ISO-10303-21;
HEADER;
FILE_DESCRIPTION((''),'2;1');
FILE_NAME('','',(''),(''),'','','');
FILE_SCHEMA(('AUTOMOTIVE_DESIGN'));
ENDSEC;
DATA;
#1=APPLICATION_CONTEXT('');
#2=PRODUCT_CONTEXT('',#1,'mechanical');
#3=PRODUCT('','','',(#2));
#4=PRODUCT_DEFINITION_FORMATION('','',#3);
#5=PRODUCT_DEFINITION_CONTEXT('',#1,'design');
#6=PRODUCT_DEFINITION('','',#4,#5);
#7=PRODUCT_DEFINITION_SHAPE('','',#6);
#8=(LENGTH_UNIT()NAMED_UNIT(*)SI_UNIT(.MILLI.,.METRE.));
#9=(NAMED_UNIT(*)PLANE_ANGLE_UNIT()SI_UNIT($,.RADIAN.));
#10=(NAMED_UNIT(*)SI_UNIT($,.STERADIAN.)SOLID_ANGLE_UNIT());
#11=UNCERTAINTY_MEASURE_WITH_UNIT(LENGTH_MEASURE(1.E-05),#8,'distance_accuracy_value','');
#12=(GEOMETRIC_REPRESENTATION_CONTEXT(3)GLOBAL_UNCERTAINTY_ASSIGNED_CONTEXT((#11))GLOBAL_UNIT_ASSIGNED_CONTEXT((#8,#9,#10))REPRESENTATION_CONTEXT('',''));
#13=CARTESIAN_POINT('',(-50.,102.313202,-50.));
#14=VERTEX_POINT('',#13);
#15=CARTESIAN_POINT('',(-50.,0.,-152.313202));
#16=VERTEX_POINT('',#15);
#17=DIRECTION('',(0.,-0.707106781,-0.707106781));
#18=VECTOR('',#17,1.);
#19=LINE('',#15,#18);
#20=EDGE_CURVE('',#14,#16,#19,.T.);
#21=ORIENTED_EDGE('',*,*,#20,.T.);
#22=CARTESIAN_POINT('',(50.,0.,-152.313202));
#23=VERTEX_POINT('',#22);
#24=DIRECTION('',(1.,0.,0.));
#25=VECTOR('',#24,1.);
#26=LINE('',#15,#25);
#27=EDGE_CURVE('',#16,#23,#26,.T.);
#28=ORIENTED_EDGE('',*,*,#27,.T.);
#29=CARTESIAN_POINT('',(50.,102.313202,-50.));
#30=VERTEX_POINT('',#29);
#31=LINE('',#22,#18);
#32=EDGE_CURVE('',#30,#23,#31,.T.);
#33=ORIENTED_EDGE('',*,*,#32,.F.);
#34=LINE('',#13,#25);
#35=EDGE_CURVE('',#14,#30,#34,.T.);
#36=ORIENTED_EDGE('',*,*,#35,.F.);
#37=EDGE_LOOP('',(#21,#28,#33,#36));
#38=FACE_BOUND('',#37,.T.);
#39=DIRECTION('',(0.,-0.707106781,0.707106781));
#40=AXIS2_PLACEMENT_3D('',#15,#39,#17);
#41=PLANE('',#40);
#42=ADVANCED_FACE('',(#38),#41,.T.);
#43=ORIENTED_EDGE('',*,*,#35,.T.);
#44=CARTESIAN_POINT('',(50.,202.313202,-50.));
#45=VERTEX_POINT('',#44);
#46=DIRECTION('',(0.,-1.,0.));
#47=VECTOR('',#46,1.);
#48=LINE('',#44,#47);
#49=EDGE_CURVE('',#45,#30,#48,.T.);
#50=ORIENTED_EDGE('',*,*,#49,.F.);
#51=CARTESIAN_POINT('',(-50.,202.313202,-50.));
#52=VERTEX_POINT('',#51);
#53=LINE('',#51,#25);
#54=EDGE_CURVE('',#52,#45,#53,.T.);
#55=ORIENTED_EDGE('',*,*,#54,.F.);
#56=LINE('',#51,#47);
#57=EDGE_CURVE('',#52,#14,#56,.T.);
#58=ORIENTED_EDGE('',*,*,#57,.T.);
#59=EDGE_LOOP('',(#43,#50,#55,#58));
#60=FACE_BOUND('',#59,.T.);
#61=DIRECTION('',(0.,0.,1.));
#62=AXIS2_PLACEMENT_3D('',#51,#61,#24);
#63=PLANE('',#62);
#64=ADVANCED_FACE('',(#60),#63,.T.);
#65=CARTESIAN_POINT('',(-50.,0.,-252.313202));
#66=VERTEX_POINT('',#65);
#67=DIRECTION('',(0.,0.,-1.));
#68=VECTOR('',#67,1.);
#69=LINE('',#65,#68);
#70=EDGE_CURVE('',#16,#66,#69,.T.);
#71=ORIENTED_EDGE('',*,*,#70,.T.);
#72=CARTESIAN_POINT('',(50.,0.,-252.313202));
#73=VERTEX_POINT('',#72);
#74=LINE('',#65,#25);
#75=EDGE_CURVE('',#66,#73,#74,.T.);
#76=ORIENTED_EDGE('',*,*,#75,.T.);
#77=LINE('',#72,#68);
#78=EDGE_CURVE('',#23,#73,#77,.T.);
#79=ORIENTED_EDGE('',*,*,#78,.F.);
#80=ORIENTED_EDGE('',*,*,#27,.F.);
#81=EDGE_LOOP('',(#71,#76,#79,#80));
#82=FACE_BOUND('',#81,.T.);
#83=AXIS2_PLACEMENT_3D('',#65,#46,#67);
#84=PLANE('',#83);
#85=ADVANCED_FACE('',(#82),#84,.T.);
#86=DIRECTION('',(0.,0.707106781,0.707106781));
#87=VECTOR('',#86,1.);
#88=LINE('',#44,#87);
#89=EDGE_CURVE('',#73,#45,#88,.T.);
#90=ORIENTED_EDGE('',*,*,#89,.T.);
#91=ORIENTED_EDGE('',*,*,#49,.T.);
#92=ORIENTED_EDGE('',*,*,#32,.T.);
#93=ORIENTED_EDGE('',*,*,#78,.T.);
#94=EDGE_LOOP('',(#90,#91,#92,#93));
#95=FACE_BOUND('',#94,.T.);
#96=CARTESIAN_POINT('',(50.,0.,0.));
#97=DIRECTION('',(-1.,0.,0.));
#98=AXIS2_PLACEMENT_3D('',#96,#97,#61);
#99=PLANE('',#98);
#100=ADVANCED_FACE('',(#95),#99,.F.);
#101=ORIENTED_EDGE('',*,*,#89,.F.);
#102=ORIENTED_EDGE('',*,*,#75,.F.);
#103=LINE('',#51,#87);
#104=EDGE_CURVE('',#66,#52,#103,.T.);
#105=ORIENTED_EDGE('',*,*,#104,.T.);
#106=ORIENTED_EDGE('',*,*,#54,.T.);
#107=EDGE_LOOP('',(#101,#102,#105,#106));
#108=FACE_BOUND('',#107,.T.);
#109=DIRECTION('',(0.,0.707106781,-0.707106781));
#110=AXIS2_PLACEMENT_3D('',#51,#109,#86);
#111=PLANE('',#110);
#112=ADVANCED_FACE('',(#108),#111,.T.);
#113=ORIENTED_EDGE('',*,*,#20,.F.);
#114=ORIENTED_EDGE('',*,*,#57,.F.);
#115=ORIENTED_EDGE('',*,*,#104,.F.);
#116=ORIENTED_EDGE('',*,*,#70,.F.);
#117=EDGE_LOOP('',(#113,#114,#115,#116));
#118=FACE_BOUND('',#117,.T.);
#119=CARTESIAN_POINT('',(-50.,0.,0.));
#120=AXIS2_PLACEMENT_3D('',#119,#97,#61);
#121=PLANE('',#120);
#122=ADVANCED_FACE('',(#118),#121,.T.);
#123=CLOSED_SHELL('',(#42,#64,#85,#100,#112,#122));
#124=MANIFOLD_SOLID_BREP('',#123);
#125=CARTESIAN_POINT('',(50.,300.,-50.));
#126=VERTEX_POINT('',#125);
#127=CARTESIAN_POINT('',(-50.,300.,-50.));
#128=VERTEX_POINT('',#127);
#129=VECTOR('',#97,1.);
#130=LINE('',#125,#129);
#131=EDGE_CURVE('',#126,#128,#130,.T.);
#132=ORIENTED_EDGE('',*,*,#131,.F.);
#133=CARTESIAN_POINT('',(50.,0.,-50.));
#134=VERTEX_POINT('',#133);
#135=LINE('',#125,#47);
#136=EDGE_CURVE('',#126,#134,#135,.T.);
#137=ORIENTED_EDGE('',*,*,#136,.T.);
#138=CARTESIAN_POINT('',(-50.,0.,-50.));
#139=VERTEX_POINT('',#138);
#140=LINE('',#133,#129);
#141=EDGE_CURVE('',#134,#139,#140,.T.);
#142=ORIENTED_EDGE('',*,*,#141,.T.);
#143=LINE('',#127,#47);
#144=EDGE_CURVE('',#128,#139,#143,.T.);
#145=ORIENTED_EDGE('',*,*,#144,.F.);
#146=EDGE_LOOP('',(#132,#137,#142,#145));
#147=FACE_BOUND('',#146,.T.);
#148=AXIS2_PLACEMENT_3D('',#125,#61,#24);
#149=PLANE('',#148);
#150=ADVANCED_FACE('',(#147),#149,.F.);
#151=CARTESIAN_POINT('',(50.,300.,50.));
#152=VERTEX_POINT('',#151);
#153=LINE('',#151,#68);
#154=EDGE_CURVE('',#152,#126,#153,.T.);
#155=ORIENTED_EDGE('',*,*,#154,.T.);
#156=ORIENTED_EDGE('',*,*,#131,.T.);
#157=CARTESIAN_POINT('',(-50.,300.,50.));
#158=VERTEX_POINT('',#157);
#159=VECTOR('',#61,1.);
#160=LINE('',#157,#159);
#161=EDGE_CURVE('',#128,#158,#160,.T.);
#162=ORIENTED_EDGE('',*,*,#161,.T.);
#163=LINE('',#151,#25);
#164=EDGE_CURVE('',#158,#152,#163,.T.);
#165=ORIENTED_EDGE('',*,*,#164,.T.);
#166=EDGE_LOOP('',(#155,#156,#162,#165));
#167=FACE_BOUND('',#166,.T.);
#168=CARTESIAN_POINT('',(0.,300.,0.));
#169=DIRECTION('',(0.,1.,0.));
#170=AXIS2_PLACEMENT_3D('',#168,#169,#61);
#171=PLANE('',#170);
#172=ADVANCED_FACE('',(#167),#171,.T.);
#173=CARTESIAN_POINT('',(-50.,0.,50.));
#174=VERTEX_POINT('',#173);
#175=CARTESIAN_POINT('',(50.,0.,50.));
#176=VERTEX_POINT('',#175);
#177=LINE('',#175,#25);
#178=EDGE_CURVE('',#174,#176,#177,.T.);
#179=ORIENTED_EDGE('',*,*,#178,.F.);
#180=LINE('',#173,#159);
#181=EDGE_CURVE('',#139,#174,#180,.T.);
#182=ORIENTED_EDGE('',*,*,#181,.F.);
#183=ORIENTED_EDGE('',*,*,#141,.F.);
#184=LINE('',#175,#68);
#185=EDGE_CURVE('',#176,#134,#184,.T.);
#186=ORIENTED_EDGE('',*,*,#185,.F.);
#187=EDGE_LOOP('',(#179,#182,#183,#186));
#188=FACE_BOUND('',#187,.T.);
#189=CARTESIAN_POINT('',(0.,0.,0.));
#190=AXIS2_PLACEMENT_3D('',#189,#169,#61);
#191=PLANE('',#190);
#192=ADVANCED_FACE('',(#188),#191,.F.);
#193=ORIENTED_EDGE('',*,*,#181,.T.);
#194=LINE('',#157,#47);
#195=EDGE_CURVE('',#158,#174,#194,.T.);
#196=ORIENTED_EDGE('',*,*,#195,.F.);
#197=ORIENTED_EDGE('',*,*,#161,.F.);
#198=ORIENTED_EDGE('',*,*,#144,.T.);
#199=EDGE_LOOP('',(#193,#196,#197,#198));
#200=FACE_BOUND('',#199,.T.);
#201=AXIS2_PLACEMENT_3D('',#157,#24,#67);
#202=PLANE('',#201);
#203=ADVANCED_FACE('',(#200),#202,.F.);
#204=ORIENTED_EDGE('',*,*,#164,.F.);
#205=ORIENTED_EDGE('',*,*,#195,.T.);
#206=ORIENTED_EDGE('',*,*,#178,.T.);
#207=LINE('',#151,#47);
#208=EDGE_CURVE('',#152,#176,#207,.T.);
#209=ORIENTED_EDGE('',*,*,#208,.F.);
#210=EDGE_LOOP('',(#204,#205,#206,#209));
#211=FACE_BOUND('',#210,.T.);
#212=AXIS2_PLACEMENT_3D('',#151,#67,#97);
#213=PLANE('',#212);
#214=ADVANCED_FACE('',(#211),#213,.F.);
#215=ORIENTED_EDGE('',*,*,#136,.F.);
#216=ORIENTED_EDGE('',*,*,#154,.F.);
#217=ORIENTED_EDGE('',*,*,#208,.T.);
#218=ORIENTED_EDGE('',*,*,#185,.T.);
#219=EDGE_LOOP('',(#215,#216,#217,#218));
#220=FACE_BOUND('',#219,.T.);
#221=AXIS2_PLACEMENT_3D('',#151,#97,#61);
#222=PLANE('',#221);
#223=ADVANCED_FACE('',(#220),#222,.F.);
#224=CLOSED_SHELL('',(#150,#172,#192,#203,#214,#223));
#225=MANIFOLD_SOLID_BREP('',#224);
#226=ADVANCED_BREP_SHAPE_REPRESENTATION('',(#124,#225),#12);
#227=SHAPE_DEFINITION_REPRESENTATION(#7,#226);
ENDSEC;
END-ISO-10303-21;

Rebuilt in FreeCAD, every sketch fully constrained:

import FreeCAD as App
import Part
import Sketcher
Q = App.Units.Quantity


def add_polygon(sketch, points):
    """Adds a closed chain of lines whose ends are joined by coincident constraints."""
    first, n = sketch.GeometryCount, len(points)
    for a, b in zip(points, points[1:] + points[:1]):
        sketch.addGeometry(Part.LineSegment(App.Vector(*a, 0), App.Vector(*b, 0)), False)
    for i in range(n):
        sketch.addConstraint(Sketcher.Constraint("Coincident", first + i, 2, first + (i + 1) % n, 1))

doc = App.newDocument("Part")
body = doc.addObject("PartDesign::Body", "Body")

# Sketch on XZ plane
sketch1 = body.newObject("Sketcher::SketchObject", "Sketch")
sketch1.AttachmentSupport = (doc.getObject("XZ_Plane"), [""])
sketch1.MapMode = "FlatFace"
add_polygon(sketch1, [(-50, -50), (-50, 50), (50, 50), (50, -50)])  # lines 0-3
sketch1.addConstraint(Sketcher.Constraint("Vertical", 0))
sketch1.addConstraint(Sketcher.Constraint("Horizontal", 1))
sketch1.addConstraint(Sketcher.Constraint("Vertical", 2))
sketch1.addConstraint(Sketcher.Constraint("Horizontal", 3))
sketch1.addConstraint(Sketcher.Constraint("Symmetric", 0, 2, 2, 2, -1, 1))
sketch1.addConstraint(Sketcher.Constraint("Equal", 3, 0))
sketch1.addConstraint(Sketcher.Constraint("DistanceX", 1, 1, 1, 2, Q("100 mm")))
pad1 = body.newObject("PartDesign::Pad", "Pad")
pad1.Profile = sketch1
pad1.Length = 300
pad1.Reversed = True
body2 = doc.addObject("PartDesign::Body", "Body001")

# Sketch on YZ plane
sketch2 = body2.newObject("Sketcher::SketchObject", "Sketch001")
sketch2.AttachmentSupport = (doc.getObject("YZ_Plane001"), [""])
sketch2.MapMode = "FlatFace"
sketch2.AttachmentOffset = App.Placement(App.Vector(0, 0, 50), App.Rotation())
add_polygon(sketch2, [(0, -252), (202, -50), (102, -50), (0, -152)])  # lines 0-3
sketch2.addConstraint(Sketcher.Constraint("Horizontal", 1))
sketch2.addConstraint(Sketcher.Constraint("Vertical", 3))
sketch2.addConstraint(Sketcher.Constraint("PointOnObject", 2, 2, -2))
sketch2.addConstraint(Sketcher.Constraint("Parallel", 0, 2))
sketch2.addConstraint(Sketcher.Constraint("Equal", 1, 3))
sketch2.addConstraint(Sketcher.Constraint("DistanceX", 1, 2, 1, 1, Q("100 mm")))
sketch2.addConstraint(Sketcher.Constraint("DistanceY", 0, 2, -1, 1, Q("50 mm")))
sketch2.addConstraint(Sketcher.Constraint("DistanceX", -1, 1, 0, 2, Q("202.313202 mm")))
pad2 = body2.newObject("PartDesign::Pad", "Pad001")
pad2.Profile = sketch2
pad2.Length = 100
pad2.Reversed = True

doc.recompute()
